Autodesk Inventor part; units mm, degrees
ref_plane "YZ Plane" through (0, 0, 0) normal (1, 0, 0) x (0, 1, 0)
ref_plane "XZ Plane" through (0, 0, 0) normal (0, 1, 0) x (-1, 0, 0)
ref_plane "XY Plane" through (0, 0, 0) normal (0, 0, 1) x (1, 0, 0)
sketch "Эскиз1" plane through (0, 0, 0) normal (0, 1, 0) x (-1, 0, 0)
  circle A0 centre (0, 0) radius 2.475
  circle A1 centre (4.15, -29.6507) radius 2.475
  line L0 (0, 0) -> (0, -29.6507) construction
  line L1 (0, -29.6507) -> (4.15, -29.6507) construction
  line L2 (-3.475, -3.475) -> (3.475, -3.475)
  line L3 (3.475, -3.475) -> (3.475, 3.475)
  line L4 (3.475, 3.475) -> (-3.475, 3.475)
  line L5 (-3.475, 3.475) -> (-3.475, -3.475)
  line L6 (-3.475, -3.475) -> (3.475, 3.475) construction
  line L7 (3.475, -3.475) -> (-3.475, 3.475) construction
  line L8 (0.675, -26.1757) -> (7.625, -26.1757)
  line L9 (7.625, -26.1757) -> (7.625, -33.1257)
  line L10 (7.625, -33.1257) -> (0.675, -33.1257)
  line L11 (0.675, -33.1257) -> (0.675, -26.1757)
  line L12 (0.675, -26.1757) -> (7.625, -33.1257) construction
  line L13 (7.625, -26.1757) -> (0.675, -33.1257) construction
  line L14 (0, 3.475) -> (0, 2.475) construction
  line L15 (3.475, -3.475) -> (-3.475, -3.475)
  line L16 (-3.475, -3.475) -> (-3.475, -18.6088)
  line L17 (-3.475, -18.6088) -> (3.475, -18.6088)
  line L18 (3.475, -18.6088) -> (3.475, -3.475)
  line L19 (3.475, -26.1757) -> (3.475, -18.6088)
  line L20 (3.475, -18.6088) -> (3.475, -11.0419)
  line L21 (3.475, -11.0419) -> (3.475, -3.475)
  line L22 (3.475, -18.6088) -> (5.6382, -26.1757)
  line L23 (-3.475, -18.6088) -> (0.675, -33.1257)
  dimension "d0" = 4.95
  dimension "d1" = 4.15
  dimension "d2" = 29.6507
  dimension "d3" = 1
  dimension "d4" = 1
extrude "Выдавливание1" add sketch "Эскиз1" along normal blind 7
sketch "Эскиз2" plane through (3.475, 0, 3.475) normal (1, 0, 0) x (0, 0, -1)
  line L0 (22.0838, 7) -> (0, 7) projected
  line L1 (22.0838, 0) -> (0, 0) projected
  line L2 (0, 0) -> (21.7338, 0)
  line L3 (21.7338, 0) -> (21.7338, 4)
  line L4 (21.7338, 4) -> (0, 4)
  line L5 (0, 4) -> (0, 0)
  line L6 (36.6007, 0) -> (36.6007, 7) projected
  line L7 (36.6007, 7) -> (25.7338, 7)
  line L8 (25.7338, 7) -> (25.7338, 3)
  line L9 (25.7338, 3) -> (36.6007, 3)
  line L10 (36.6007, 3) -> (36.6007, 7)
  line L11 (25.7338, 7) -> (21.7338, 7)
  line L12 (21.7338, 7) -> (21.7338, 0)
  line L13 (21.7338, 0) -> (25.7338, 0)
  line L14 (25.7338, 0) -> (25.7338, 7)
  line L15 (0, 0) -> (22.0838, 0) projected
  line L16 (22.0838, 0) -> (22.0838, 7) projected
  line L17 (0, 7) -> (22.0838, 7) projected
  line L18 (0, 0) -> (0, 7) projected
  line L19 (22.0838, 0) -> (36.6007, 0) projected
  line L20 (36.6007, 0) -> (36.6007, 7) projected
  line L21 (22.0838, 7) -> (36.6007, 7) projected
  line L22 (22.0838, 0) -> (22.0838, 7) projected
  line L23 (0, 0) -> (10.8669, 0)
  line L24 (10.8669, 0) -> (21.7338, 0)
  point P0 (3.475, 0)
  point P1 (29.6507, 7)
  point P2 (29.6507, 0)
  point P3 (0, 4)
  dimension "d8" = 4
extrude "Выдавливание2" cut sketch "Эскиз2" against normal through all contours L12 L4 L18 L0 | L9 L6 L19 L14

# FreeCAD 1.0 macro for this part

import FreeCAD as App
import Part
import Sketcher

V = App.Vector
Q = App.Units.Quantity


def add_polygon(sketch, points):
    """Adds a closed chain of lines whose ends are joined by coincident constraints."""
    first, n = sketch.GeometryCount, len(points)
    for a, b in zip(points, points[1:] + points[:1]):
        sketch.addGeometry(Part.LineSegment(App.Vector(*a, 0), App.Vector(*b, 0)), False)
    for i in range(n):
        sketch.addConstraint(Sketcher.Constraint("Coincident", first + i, 2, first + (i + 1) % n, 1))

doc = App.newDocument("Part")
body = doc.addObject("PartDesign::Body", "Body")

# Sketch on XZ plane
sketch1 = body.newObject("Sketcher::SketchObject", "Sketch")
sketch1.AttachmentSupport = (doc.getObject("XZ_Plane"), [""])
sketch1.MapMode = "FlatFace"
add_polygon(sketch1, [(3.5, 3.5), (3.5, -18.6), (-0.7, -33.1), (-7.6, -33.1), (-7.6, -26.2), (-5.6, -26.2), (-3.5, -18.6), (-3.5, 3.5)])  # lines 0-7
sketch1.addGeometry(Part.Circle(V(0, 0, 0), V(0, 0, 1), 2.5), False)  # 8
sketch1.addGeometry(Part.Circle(V(-4.2, -29.7, 0), V(0, 0, 1), 2.5), False)  # 9
sketch1.addConstraint([
    Sketcher.Constraint("Vertical", 0),
    Sketcher.Constraint("Horizontal", 2),
    Sketcher.Constraint("Vertical", 3),
    Sketcher.Constraint("Horizontal", 4),
    Sketcher.Constraint("Vertical", 6),
    Sketcher.Constraint("Horizontal", 7),
    Sketcher.Constraint("Coincident", 8, 3, -1, 1),
    Sketcher.Constraint("Equal", 8, 9),
    Sketcher.Constraint("Symmetric", 0, 2, 5, 2, -2),
    Sketcher.Constraint("Parallel", 1, 5),
    Sketcher.Constraint("Equal", 2, 7),
    Sketcher.Constraint("Equal", 7, 3),
    Sketcher.Constraint("Diameter", 8, Q("4.95 mm")),
    Sketcher.Constraint("DistanceX", 9, 3, -1, 1, Q("4.15 mm")),
    Sketcher.Constraint("DistanceX", 1, 2, 0, 2, Q("4.15 mm")),
    Sketcher.Constraint("DistanceX", 2, 2, 2, 1, Q("6.95 mm")),
    Sketcher.Constraint("DistanceY", 9, 3, -1, 1, Q("29.6507 mm")),
    Sketcher.Constraint("DistanceY", 4, 2, 6, 2, Q("29.6507 mm")),
    Sketcher.Constraint("Distance", 5, Q("7.87 mm")),
    Sketcher.Constraint("DistanceY", -1, 1, 6, 2, Q("3.475 mm")),
])
pad1 = body.newObject("PartDesign::Pad", "Pad")
pad1.Profile = sketch1
pad1.Length = 7
pad1.Reversed = True

# Sketch on YZ plane
sketch2 = body.newObject("Sketcher::SketchObject", "Sketch001")
sketch2.AttachmentSupport = (doc.getObject("YZ_Plane"), [""])
sketch2.MapMode = "FlatFace"
sketch2.AttachmentOffset = App.Placement(V(0, 0, 3.475), App.Rotation())
add_polygon(sketch2, [(4, -18.3), (7, -18.3), (7, 3.5), (4, 3.5)])  # lines 0-3
add_polygon(sketch2, [(3, -33.1), (3, -22.3), (0, -22.3), (0, -33.1)])  # lines 4-7
sketch2.addConstraint([
    Sketcher.Constraint("Horizontal", 0),
    Sketcher.Constraint("Vertical", 1),
    Sketcher.Constraint("Horizontal", 2),
    Sketcher.Constraint("Vertical", 3),
    Sketcher.Constraint("Vertical", 4),
    Sketcher.Constraint("Horizontal", 5),
    Sketcher.Constraint("Vertical", 6),
    Sketcher.Constraint("Horizontal", 7),
    Sketcher.Constraint("PointOnObject", 5, 2, -2),
    Sketcher.Constraint("Equal", 2, 5),
    Sketcher.Constraint("DistanceX", -1, 1, 2, 2, Q("4 mm")),
    Sketcher.Constraint("DistanceY", 4, 2, 3, 2, Q("4 mm")),
    Sketcher.Constraint("DistanceX", 0, 1, 0, 2, Q("3 mm")),
    Sketcher.Constraint("DistanceY", 4, 1, 4, 2, Q("10.867 mm")),
    Sketcher.Constraint("DistanceY", 1, 1, 1, 2, Q("21.7338 mm")),
    Sketcher.Constraint("DistanceY", -1, 1, 1, 2, Q("3.475 mm")),
])
pocket1 = body.newObject("PartDesign::Pocket", "Pocket")
pocket1.Profile = sketch2
pocket1.Type = "ThroughAll"

doc.recompute()
